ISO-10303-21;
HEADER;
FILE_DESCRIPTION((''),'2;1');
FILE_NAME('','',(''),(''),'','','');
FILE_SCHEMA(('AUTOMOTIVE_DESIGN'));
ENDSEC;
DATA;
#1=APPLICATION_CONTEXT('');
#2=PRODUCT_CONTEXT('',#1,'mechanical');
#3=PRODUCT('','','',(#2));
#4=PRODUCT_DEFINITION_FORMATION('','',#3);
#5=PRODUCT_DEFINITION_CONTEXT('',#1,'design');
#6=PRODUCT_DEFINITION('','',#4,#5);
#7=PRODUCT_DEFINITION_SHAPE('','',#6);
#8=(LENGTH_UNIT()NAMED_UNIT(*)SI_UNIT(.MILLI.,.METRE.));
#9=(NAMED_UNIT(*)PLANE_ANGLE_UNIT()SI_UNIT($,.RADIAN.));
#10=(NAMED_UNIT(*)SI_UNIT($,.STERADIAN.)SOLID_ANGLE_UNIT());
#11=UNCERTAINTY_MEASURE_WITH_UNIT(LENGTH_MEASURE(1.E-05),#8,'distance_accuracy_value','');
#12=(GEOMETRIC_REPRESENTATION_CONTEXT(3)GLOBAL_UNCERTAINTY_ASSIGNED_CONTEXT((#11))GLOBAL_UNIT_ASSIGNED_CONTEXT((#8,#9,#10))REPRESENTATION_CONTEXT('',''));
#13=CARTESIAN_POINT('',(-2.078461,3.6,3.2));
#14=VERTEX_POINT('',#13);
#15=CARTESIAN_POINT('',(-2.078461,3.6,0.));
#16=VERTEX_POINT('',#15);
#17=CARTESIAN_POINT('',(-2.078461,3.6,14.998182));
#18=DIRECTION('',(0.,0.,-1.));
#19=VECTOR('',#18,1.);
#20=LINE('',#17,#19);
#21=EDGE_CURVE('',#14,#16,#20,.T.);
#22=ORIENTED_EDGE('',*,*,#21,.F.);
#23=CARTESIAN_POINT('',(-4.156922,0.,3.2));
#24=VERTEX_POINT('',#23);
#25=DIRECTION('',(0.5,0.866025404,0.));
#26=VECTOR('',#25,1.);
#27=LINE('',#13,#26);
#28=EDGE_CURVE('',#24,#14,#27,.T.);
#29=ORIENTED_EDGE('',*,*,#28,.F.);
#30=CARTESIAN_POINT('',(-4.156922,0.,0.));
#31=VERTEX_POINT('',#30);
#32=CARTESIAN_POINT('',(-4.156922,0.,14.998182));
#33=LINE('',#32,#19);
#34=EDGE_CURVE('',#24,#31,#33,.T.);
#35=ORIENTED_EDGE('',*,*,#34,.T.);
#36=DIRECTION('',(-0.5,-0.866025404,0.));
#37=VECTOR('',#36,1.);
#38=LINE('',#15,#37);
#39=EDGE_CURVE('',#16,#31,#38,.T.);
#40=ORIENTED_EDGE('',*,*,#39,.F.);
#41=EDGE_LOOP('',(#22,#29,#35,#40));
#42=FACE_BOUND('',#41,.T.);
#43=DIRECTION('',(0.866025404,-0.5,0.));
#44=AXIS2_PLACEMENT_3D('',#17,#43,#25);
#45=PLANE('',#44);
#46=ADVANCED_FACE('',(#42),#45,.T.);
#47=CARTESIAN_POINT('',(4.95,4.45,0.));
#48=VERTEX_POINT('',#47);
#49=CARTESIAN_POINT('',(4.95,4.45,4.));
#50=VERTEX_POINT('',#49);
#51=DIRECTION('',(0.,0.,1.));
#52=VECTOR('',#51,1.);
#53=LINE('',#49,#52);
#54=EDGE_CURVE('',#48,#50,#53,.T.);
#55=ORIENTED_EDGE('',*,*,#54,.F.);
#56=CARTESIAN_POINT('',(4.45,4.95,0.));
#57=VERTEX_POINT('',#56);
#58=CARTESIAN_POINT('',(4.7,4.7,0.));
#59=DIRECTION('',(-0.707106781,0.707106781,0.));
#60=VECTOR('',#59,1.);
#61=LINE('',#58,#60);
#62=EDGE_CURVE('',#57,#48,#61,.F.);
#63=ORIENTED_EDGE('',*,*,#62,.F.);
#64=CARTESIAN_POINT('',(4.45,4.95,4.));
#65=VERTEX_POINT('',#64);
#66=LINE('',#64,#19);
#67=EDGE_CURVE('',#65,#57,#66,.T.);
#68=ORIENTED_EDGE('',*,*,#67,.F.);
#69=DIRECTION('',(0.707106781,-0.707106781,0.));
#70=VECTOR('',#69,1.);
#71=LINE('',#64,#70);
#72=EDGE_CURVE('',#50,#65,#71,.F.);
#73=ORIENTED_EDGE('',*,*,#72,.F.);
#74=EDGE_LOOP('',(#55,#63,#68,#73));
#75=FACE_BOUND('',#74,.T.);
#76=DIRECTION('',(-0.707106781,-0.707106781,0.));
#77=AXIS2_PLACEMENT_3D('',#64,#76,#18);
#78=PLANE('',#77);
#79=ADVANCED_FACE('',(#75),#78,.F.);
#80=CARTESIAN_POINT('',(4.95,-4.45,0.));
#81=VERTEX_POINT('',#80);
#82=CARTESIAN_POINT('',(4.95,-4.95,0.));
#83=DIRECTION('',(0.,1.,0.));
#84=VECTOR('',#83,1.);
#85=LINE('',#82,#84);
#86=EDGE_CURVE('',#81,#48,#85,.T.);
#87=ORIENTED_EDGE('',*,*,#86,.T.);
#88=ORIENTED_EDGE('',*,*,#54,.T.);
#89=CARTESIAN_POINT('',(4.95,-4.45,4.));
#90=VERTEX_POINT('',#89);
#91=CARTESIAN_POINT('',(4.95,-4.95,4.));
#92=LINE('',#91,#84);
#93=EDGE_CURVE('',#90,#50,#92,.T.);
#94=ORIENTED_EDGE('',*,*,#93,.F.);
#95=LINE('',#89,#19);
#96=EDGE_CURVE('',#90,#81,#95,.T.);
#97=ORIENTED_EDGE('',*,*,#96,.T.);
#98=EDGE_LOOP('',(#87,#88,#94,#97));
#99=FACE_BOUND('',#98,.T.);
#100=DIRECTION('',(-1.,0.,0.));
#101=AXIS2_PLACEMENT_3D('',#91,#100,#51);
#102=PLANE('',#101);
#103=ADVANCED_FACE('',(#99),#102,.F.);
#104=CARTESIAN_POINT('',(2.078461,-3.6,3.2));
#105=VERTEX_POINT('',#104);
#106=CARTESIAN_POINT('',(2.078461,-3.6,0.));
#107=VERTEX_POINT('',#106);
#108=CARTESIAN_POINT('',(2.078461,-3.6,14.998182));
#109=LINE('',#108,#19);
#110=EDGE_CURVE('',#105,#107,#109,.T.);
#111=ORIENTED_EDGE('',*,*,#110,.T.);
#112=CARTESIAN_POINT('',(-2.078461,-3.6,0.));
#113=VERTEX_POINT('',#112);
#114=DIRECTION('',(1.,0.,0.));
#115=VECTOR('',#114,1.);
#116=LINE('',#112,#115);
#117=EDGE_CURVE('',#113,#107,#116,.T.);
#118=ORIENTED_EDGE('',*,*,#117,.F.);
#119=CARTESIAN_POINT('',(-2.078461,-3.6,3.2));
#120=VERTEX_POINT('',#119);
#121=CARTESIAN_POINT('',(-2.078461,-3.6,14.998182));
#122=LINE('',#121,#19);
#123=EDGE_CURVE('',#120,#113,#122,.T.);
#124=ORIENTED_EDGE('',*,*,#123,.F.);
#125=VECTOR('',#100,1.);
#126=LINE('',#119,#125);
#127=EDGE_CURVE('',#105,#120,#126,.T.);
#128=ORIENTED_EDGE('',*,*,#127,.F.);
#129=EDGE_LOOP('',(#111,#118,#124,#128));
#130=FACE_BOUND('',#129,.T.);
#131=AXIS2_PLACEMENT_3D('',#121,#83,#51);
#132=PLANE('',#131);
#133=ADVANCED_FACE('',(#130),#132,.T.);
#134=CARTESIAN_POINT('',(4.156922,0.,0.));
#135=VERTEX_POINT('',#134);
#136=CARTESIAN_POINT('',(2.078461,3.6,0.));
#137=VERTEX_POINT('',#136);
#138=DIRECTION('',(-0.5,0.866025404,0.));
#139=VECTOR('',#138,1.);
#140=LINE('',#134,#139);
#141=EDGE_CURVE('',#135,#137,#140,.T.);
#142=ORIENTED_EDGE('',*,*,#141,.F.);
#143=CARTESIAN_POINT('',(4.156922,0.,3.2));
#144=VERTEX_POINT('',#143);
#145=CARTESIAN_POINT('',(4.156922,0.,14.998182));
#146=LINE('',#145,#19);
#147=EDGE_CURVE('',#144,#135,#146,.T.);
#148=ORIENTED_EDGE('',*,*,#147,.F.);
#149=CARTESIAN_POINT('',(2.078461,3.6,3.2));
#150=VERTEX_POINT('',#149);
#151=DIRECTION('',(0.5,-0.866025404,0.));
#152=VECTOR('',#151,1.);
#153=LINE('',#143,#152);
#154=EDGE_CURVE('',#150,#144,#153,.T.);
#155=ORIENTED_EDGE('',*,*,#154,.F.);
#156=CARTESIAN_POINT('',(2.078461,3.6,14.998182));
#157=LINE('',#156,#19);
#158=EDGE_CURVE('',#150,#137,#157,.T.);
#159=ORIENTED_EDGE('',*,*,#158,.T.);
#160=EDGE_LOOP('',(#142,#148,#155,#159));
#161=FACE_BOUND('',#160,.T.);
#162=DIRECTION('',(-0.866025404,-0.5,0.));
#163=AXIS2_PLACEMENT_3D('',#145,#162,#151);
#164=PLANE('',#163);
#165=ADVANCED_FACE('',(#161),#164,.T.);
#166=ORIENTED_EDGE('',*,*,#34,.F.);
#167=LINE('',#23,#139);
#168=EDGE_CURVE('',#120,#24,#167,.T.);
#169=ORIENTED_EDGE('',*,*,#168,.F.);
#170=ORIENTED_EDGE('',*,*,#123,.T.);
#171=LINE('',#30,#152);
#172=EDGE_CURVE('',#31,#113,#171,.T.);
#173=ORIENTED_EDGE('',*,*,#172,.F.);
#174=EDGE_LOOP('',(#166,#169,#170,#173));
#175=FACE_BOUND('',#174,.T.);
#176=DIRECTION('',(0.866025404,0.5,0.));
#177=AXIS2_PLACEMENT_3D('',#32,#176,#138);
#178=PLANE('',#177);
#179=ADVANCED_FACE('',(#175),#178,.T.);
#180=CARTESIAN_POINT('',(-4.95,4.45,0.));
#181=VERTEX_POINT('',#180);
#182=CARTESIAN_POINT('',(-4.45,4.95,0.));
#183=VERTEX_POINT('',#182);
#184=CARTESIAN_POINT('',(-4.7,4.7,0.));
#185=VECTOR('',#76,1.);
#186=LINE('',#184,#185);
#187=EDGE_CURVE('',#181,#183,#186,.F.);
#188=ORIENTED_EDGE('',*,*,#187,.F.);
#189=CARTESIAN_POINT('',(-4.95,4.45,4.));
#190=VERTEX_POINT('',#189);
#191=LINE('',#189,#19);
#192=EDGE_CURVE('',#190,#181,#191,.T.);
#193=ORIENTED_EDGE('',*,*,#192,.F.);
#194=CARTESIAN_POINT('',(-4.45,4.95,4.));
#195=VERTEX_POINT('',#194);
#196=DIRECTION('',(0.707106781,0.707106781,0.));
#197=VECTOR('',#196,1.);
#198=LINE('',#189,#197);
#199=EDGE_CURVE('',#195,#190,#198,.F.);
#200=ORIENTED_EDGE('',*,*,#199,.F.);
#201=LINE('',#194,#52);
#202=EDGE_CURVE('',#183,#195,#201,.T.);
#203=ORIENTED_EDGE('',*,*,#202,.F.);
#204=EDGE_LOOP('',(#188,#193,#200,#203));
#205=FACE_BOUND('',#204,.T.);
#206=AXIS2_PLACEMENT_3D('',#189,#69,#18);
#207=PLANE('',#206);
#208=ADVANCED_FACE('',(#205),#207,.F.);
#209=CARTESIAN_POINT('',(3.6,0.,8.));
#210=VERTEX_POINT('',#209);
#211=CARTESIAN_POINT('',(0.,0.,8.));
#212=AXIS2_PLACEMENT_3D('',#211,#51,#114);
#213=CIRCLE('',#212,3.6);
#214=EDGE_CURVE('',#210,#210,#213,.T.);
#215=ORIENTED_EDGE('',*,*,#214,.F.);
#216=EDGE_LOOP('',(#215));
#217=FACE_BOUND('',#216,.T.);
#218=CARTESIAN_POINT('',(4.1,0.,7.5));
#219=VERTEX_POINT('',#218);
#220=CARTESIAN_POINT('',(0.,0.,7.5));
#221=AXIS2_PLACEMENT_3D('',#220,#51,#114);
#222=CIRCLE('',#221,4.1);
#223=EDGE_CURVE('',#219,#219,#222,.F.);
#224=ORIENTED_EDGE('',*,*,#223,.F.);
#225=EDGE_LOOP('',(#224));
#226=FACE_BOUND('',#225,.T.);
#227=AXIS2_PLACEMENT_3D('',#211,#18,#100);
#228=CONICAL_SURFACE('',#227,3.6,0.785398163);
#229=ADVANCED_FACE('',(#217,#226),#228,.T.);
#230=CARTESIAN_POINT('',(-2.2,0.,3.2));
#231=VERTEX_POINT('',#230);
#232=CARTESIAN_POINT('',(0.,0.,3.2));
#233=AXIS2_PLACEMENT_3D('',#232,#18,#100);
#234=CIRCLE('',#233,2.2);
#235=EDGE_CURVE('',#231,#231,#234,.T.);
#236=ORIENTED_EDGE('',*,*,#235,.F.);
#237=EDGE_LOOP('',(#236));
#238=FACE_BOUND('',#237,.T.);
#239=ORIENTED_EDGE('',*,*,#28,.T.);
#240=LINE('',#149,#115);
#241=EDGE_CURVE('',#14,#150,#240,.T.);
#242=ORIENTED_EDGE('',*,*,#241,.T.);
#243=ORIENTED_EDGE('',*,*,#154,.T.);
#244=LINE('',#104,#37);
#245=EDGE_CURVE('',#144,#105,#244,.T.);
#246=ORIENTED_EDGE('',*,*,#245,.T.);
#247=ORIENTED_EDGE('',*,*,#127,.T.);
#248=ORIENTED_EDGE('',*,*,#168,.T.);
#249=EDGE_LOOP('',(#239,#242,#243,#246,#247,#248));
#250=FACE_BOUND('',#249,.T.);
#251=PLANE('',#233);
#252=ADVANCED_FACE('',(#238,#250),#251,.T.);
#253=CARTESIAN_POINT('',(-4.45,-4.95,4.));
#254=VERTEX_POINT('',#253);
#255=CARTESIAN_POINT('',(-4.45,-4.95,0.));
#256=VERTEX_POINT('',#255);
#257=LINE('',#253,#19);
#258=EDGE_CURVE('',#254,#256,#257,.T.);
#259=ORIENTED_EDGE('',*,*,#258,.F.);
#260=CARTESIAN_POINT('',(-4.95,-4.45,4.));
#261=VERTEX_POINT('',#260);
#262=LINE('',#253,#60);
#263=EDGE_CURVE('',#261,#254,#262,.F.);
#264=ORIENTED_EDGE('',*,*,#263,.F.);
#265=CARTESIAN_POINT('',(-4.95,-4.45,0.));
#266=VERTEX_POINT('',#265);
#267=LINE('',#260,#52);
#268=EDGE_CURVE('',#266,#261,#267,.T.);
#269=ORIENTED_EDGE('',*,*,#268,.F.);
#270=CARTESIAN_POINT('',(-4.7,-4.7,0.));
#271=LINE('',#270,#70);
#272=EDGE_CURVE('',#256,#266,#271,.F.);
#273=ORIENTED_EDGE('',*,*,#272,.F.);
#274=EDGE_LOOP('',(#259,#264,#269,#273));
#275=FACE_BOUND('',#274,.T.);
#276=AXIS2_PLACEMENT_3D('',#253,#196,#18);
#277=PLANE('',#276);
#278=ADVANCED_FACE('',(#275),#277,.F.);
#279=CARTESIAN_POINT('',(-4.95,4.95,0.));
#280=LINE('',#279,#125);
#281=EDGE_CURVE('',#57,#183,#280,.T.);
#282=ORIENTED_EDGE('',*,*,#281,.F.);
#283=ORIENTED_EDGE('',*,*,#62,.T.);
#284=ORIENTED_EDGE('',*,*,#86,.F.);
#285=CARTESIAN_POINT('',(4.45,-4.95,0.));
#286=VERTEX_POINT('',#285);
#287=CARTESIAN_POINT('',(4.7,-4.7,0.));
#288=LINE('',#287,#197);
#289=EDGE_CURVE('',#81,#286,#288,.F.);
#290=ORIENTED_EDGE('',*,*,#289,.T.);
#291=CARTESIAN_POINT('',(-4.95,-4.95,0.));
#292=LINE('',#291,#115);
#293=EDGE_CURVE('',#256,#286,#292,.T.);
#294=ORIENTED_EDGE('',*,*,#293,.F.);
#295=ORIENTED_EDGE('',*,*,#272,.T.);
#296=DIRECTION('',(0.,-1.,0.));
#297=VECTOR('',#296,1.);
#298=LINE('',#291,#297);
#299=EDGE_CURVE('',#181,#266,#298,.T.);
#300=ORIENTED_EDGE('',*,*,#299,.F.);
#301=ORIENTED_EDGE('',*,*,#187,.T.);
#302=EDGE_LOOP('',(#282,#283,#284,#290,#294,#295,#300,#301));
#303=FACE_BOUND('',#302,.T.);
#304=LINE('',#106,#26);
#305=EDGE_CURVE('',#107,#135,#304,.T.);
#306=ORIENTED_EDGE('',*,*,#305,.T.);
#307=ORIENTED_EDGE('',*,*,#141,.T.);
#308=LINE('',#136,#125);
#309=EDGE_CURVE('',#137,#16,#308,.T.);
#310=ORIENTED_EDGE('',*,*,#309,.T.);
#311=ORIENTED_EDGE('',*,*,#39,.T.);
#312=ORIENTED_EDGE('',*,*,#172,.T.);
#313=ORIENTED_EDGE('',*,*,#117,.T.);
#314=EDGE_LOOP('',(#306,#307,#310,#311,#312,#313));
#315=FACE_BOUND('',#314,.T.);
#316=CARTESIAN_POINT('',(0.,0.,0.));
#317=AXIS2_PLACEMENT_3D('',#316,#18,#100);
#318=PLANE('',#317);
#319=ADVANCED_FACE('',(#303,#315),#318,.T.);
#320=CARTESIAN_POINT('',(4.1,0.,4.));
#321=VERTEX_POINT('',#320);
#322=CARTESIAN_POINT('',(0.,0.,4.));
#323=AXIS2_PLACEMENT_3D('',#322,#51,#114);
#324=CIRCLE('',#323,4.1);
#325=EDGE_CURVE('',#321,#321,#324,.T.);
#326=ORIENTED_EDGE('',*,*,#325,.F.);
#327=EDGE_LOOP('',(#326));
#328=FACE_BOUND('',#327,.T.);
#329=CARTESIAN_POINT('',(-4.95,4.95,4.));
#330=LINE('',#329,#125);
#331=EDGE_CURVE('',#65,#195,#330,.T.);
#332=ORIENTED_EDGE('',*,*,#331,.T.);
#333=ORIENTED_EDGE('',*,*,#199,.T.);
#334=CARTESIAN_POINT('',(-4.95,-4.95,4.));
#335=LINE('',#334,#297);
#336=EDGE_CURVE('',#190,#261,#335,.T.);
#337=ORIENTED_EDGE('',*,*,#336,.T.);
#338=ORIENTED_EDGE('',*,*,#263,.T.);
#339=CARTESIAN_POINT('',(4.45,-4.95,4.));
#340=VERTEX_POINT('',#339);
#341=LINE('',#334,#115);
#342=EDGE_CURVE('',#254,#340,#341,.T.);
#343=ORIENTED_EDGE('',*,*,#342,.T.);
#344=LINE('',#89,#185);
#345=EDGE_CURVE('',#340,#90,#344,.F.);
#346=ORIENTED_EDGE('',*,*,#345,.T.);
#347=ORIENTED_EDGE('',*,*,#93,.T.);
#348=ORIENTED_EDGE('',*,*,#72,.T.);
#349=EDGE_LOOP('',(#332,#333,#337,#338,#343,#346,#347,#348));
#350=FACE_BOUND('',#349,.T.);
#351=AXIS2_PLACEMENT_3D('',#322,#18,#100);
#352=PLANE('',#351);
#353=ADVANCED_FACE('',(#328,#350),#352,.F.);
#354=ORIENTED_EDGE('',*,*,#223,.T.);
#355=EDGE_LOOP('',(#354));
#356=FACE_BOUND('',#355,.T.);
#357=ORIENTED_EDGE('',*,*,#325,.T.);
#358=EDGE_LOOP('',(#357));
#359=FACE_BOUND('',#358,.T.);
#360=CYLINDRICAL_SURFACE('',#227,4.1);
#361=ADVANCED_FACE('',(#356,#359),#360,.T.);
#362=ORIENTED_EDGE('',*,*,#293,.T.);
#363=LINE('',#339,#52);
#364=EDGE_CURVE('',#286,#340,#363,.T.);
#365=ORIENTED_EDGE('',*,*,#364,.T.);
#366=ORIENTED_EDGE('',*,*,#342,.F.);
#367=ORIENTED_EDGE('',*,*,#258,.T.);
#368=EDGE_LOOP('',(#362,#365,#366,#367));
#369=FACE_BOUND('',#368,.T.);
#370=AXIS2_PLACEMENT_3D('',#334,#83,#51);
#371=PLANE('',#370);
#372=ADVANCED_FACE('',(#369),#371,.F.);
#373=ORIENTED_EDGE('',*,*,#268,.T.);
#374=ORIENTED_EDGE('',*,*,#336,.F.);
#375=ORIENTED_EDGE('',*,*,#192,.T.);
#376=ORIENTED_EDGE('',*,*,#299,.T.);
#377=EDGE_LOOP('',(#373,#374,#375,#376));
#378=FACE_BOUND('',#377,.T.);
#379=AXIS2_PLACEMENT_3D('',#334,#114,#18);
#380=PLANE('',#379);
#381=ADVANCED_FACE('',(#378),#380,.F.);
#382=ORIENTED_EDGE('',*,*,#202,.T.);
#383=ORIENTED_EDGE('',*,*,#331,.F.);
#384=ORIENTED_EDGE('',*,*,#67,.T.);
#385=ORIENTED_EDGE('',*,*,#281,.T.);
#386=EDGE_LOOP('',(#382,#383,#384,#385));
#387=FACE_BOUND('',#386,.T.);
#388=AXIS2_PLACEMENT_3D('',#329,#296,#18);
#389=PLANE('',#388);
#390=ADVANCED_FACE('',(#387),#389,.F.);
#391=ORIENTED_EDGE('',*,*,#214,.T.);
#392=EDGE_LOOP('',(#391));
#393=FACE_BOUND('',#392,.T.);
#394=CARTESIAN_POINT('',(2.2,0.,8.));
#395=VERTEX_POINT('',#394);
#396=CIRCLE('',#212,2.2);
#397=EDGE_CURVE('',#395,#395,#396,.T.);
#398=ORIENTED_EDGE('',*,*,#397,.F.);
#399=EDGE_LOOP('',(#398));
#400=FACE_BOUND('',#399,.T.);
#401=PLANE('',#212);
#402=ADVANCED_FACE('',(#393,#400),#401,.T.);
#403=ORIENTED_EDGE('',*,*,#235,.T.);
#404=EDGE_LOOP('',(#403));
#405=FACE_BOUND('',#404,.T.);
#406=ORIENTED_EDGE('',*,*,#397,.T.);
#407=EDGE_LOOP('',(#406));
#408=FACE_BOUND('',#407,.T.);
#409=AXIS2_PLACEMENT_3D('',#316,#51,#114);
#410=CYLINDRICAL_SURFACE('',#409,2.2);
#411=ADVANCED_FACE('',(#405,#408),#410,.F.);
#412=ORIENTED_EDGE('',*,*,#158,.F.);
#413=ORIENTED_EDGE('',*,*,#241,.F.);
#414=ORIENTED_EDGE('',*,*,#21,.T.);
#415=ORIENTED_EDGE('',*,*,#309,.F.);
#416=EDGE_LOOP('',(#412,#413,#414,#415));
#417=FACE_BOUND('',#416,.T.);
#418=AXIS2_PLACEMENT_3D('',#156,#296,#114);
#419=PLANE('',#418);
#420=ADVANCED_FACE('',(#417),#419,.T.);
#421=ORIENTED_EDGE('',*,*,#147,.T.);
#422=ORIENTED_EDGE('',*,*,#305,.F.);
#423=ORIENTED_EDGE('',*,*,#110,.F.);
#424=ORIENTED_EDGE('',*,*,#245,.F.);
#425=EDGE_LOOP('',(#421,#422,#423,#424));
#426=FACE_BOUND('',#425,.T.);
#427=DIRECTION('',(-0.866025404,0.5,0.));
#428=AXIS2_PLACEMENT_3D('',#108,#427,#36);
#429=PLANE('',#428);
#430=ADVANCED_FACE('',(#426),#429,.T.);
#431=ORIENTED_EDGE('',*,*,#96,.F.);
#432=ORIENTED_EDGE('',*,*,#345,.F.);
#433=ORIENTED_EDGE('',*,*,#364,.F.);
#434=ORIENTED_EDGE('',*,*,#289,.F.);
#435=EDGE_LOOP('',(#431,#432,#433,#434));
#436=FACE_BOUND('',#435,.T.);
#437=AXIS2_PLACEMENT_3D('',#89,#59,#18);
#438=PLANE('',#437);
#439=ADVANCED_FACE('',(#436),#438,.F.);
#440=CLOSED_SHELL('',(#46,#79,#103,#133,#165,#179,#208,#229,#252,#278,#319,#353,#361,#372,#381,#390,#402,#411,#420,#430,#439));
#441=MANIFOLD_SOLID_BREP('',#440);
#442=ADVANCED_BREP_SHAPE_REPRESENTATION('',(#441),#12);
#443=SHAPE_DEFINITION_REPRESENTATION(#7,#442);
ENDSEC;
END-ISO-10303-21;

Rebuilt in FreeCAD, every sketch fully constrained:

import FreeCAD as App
import Part
import Sketcher
Q = App.Units.Quantity


def edges_at(feature, points):
    """Names of the edges that pass closest to the given points."""
    edges = feature.Shape.Edges
    near = lambda p: min(range(len(edges)), key=lambda i: edges[i].distToShape(Part.Vertex(*p))[0])
    return sorted({f"Edge{near(p) + 1}" for p in points})

doc = App.newDocument("Part")
body = doc.addObject("PartDesign::Body", "Body")

# Sketch on XY plane
sketch1 = doc.addObject("Sketcher::SketchObject", "Sketch")
body.addObject(sketch1)
sketch1.AttachmentSupport = (doc.XY_Plane, [""])
sketch1.MapMode = "FlatFace"
sketch1.addGeometry(Part.LineSegment(App.Vector(-5, 5, 0), App.Vector(-5, -5, 0)), False)
sketch1.addGeometry(Part.LineSegment(App.Vector(-5, -5, 0), App.Vector(5, -5, 0)), False)
sketch1.addGeometry(Part.LineSegment(App.Vector(5, -5, 0), App.Vector(5, 5, 0)), False)
sketch1.addGeometry(Part.LineSegment(App.Vector(5, 5, 0), App.Vector(-5, 5, 0)), False)
sketch1.addConstraint(Sketcher.Constraint("Coincident", 0, 2, 1, 1))
sketch1.addConstraint(Sketcher.Constraint("Coincident", 1, 2, 2, 1))
sketch1.addConstraint(Sketcher.Constraint("Coincident", 2, 2, 3, 1))
sketch1.addConstraint(Sketcher.Constraint("Coincident", 3, 2, 0, 1))
sketch1.addConstraint(Sketcher.Constraint("Vertical", 0))
sketch1.addConstraint(Sketcher.Constraint("Horizontal", 1))
sketch1.addConstraint(Sketcher.Constraint("Vertical", 2))
sketch1.addConstraint(Sketcher.Constraint("Horizontal", 3))
sketch1.addConstraint(Sketcher.Constraint("Symmetric", 0, 2, 2, 2, -1, 1))
sketch1.addConstraint(Sketcher.Constraint("Equal", 3, 0))
sketch1.addConstraint(Sketcher.Constraint("DistanceX", 1, 1, 1, 2, 9.9))
pad1 = doc.addObject("PartDesign::Pad", "Pad")
body.addObject(pad1)
pad1.Profile = sketch1
pad1.Length = 4

# Sketch on XY plane
sketch2 = doc.addObject("Sketcher::SketchObject", "Sketch001")
body.addObject(sketch2)
sketch2.AttachmentSupport = (doc.XY_Plane, [""])
sketch2.MapMode = "FlatFace"
sketch2.addGeometry(Part.LineSegment(App.Vector(4.2, 0, 0), App.Vector(2.1, 3.6, 0)), False)
sketch2.addGeometry(Part.LineSegment(App.Vector(2.1, 3.6, 0), App.Vector(-2.1, 3.6, 0)), False)
sketch2.addGeometry(Part.LineSegment(App.Vector(-2.1, 3.6, 0), App.Vector(-4.2, 0, 0)), False)
sketch2.addGeometry(Part.LineSegment(App.Vector(-4.2, 0, 0), App.Vector(-2.1, -3.6, 0)), False)
sketch2.addGeometry(Part.LineSegment(App.Vector(-2.1, -3.6, 0), App.Vector(2.1, -3.6, 0)), False)
sketch2.addGeometry(Part.LineSegment(App.Vector(2.1, -3.6, 0), App.Vector(4.2, 0, 0)), False)
sketch2.addConstraint(Sketcher.Constraint("Coincident", 0, 2, 1, 1))
sketch2.addConstraint(Sketcher.Constraint("Coincident", 1, 2, 2, 1))
sketch2.addConstraint(Sketcher.Constraint("Coincident", 2, 2, 3, 1))
sketch2.addConstraint(Sketcher.Constraint("Coincident", 3, 2, 4, 1))
sketch2.addConstraint(Sketcher.Constraint("Coincident", 4, 2, 5, 1))
sketch2.addConstraint(Sketcher.Constraint("Coincident", 5, 2, 0, 1))
sketch2.addConstraint(Sketcher.Constraint("Horizontal", 1))
sketch2.addConstraint(Sketcher.Constraint("Horizontal", 4))
sketch2.addConstraint(Sketcher.Constraint("Symmetric", 0, 2, 3, 2, -1, 1))
sketch2.addConstraint(Sketcher.Constraint("Symmetric", 2, 2, 5, 2, -1, 1))
sketch2.addConstraint(Sketcher.Constraint("PointOnObject", 2, 2, -1))
sketch2.addConstraint(Sketcher.Constraint("Parallel", 2, 5))
sketch2.addConstraint(Sketcher.Constraint("Vertical", 1, 2, 3, 2))
sketch2.addConstraint(Sketcher.Constraint("Angle", 0, Q("120 deg")))
sketch2.addConstraint(Sketcher.Constraint("DistanceY", -1, 1, 0, 2, 3.6))
sketch2.addConstraint(Sketcher.Constraint("DistanceX", 1, 2, 1, 1, 4.156922))
pocket1 = doc.addObject("PartDesign::Pocket", "Pocket")
body.addObject(pocket1)
pocket1.Profile = sketch2
pocket1.Length = 3.2
pocket1.Reversed = True

# Sketch on XY plane
sketch3 = doc.addObject("Sketcher::SketchObject", "Sketch002")
body.addObject(sketch3)
sketch3.AttachmentSupport = (doc.XY_Plane, [""])
sketch3.MapMode = "FlatFace"
sketch3.AttachmentOffset = App.Placement(App.Vector(0, 0, 4), App.Rotation())
sketch3.addGeometry(Part.Circle(App.Vector(0, 0, 0), App.Vector(0, 0, 1), 4.1), False)
sketch3.addConstraint(Sketcher.Constraint("Coincident", 0, 3, -1, 1))
sketch3.addConstraint(Sketcher.Constraint("Diameter", 0, 8.2))
pad2 = doc.addObject("PartDesign::Pad", "Pad001")
body.addObject(pad2)
pad2.Profile = sketch3
pad2.Length = 4
doc.recompute()

chamfer = doc.addObject("PartDesign::Chamfer", "Chamfer")
body.addObject(chamfer)
chamfer.Base = (pad2, edges_at(pad2, [(-4.1, 0, 8)]))
chamfer.Size = 0.5

# Sketch on XY plane
sketch4 = doc.addObject("Sketcher::SketchObject", "Sketch003")
body.addObject(sketch4)
sketch4.AttachmentSupport = (doc.XY_Plane, [""])
sketch4.MapMode = "FlatFace"
sketch4.AttachmentOffset = App.Placement(App.Vector(0, 0, 8), App.Rotation())
sketch4.addGeometry(Part.Circle(App.Vector(0, 0, 0), App.Vector(0, 0, 1), 2.2), False)
sketch4.addConstraint(Sketcher.Constraint("Coincident", 0, 3, -1, 1))
sketch4.addConstraint(Sketcher.Constraint("Diameter", 0, 4.4))
pocket2 = doc.addObject("PartDesign::Pocket", "Pocket001")
body.addObject(pocket2)
pocket2.Profile = sketch4
pocket2.Type = "ThroughAll"
doc.recompute()

chamfer2 = doc.addObject("PartDesign::Chamfer", "Chamfer001")
body.addObject(chamfer2)
chamfer2.Base = (pocket2, edges_at(pocket2, [
    (4.95, -4.95, 2),
    (-4.95, -4.95, 2),
    (-4.95, 4.95, 2),
    (4.95, 4.95, 2),
]))
chamfer2.Size = 0.5

doc.recompute()
